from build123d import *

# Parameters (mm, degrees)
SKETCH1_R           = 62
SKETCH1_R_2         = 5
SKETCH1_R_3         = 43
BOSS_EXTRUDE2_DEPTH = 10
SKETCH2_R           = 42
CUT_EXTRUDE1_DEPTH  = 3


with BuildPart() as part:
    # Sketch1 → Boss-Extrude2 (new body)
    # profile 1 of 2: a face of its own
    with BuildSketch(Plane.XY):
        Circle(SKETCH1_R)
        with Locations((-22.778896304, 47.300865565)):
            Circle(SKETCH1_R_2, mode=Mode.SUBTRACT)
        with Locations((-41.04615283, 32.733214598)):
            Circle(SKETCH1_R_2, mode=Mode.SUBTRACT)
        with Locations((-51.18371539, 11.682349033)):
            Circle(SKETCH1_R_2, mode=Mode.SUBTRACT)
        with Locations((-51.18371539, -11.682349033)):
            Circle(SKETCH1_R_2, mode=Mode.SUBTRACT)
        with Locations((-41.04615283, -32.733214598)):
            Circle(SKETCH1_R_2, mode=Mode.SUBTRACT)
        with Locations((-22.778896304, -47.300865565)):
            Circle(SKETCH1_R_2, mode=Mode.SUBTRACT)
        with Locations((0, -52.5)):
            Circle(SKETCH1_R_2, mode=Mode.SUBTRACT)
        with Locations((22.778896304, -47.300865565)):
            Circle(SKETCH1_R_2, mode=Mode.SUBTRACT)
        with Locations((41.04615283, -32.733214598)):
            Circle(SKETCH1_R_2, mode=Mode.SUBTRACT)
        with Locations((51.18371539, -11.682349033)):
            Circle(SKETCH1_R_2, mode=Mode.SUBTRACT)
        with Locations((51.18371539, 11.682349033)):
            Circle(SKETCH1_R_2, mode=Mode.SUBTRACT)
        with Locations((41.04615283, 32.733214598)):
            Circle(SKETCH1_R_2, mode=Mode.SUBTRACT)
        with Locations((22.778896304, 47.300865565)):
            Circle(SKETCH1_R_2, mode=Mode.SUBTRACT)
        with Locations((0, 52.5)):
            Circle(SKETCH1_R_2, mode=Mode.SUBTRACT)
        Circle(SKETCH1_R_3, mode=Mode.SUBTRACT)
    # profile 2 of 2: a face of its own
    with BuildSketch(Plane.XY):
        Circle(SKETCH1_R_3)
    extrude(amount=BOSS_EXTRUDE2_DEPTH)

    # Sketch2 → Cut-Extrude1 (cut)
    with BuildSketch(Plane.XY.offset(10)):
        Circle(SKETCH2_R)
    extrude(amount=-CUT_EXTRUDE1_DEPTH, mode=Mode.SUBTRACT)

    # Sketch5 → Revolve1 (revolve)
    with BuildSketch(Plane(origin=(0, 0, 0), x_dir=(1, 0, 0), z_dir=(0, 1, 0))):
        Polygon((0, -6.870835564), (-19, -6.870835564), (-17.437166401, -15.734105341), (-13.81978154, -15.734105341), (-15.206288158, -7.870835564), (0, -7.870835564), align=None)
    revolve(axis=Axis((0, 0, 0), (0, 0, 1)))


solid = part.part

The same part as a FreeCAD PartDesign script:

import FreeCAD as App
import Part
import Sketcher
Q = App.Units.Quantity

doc = App.newDocument("Part")
params = doc.addObject("Spreadsheet::Sheet", "Params")
for row, (alias, value) in enumerate([
    ("sketch1_diameter", "124 mm"),
    ("sketch1_diameter2", "10 mm"),
    ("pad1_length", "10 mm"),
    ("sketch2_diameter", "84 mm"),
    ("pocket1_length", "3 mm"),
    ("sketch3_width", "19 mm"),
    ("sketch3_height", "1 mm"),
    ("sketch3_length", "9 mm"),
    ("revolution_angle", "360 deg"),
], start=1):
    params.set(f"A{row}", alias)
    params.set(f"B{row}", "=" + value)
    params.setAlias(f"B{row}", alias)

body = doc.addObject("PartDesign::Body", "Body")

sketch1 = body.newObject("Sketcher::SketchObject", "Sketch")
sketch1.AttachmentSupport = (doc.getObject("XY_Plane"), [""])
sketch1.MapMode = "FlatFace"
sketch1.addGeometry([
    Part.Circle(App.Vector(0, 0, 0), App.Vector(0, 0, 1), 62),
    Part.Circle(App.Vector(-41.046153, -32.733215, 0), App.Vector(0, 0, 1), 5),
    Part.Circle(App.Vector(-22.778896, -47.300866, 0), App.Vector(0, 0, 1), 5),
    Part.Circle(App.Vector(-51.183715, -11.682349, 0), App.Vector(0, 0, 1), 5),
    Part.Circle(App.Vector(0, -52.5, 0), App.Vector(0, 0, 1), 5),
    Part.Circle(App.Vector(22.778896, -47.300866, 0), App.Vector(0, 0, 1), 5),
    Part.Circle(App.Vector(41.046153, -32.733215, 0), App.Vector(0, 0, 1), 5),
    Part.Circle(App.Vector(51.183715, -11.682349, 0), App.Vector(0, 0, 1), 5),
    Part.Circle(App.Vector(-51.183715, 11.682349, 0), App.Vector(0, 0, 1), 5),
    Part.Circle(App.Vector(-41.046153, 32.733215, 0), App.Vector(0, 0, 1), 5),
    Part.Circle(App.Vector(-22.778896, 47.300866, 0), App.Vector(0, 0, 1), 5),
    Part.Circle(App.Vector(51.183715, 11.682349, 0), App.Vector(0, 0, 1), 5),
    Part.Circle(App.Vector(0, 52.5, 0), App.Vector(0, 0, 1), 5),
    Part.Circle(App.Vector(22.778896, 47.300866, 0), App.Vector(0, 0, 1), 5),
    Part.Circle(App.Vector(41.046153, 32.733215, 0), App.Vector(0, 0, 1), 5),
], False)
sketch1.addConstraint([
    Sketcher.Constraint("Coincident", 0, 3, -1, 1),
    Sketcher.Constraint("Equal", 1, 2),
    Sketcher.Constraint("Equal", 2, 3),
    Sketcher.Constraint("Equal", 3, 4),
    Sketcher.Constraint("Equal", 4, 5),
    Sketcher.Constraint("Equal", 5, 6),
    Sketcher.Constraint("Equal", 6, 7),
    Sketcher.Constraint("Equal", 7, 8),
    Sketcher.Constraint("Equal", 8, 9),
    Sketcher.Constraint("Equal", 9, 10),
    Sketcher.Constraint("Equal", 10, 11),
    Sketcher.Constraint("Equal", 11, 12),
    Sketcher.Constraint("Equal", 12, 13),
    Sketcher.Constraint("Equal", 13, 14),
    Sketcher.Constraint("Symmetric", 7, 3, 8, 3, -1, 1),
    Sketcher.Constraint("Symmetric", 6, 3, 9, 3, -1, 1),
    Sketcher.Constraint("Symmetric", 5, 3, 10, 3, -1, 1),
    Sketcher.Constraint("Symmetric", 3, 3, 11, 3, -1, 1),
    Sketcher.Constraint("Symmetric", 4, 3, 12, 3, -1, 1),
    Sketcher.Constraint("Symmetric", 2, 3, 13, 3, -1, 1),
    Sketcher.Constraint("Symmetric", 1, 3, 14, 3, -1, 1),
    Sketcher.Constraint("Symmetric", 2, 3, 5, 3, -2),
    Sketcher.Constraint("Symmetric", 1, 3, 6, 3, -2),
    Sketcher.Constraint("Symmetric", 3, 3, 7, 3, -2),
    Sketcher.Constraint("PointOnObject", 4, 3, -2),
    Sketcher.Constraint("Diameter", 0, 124.0),
    Sketcher.Constraint("Diameter", 1, 10.0),
    Sketcher.Constraint("DistanceY", 4, 3, -1, 1, 52.5),
    Sketcher.Constraint("DistanceY", 3, 3, 8, 3, 23.364698),
    Sketcher.Constraint("DistanceY", 2, 3, 1, 3, 14.567651),
    Sketcher.Constraint("DistanceX", 3, 3, 2, 3, 28.404819),
    Sketcher.Constraint("DistanceX", 1, 3, 5, 3, 63.825049),
    Sketcher.Constraint("DistanceX", 3, 3, 5, 3, 73.962612),
    Sketcher.Constraint("DistanceY", 1, 3, 9, 3, 65.466429),
])
sketch1.setExpression("Constraints[25]", "Params.sketch1_diameter")
sketch1.setExpression("Constraints[26]", "Params.sketch1_diameter2")
pad1 = body.newObject("PartDesign::Pad", "Pad")
pad1.Profile = sketch1
pad1.setExpression("Length", "Params.pad1_length")

sketch2 = body.newObject("Sketcher::SketchObject", "Sketch001")
sketch2.AttachmentSupport = (doc.getObject("XY_Plane"), [""])
sketch2.MapMode = "FlatFace"
sketch2.AttachmentOffset = App.Placement(App.Vector(0, 0, 10), App.Rotation())
sketch2.addGeometry(Part.Circle(App.Vector(0, 0, 0), App.Vector(0, 0, 1), 42), False)
sketch2.addConstraint([
    Sketcher.Constraint("Coincident", 0, 3, -1, 1),
    Sketcher.Constraint("Diameter", 0, 84.0),
])
sketch2.setExpression("Constraints[1]", "Params.sketch2_diameter")
pocket1 = body.newObject("PartDesign::Pocket", "Pocket")
pocket1.Profile = sketch2
pocket1.setExpression("Length", "Params.pocket1_length")

sketch3 = body.newObject("Sketcher::SketchObject", "Sketch002")
sketch3.AttachmentSupport = (doc.getObject("XZ_Plane"), [""])
sketch3.MapMode = "FlatFace"
sketch3.addGeometry([
    Part.LineSegment(App.Vector(0, 6.870836, 0), App.Vector(-19, 6.870836, 0)),
    Part.LineSegment(App.Vector(-19, 6.870836, 0), App.Vector(-17.437166, 15.734105, 0)),
    Part.LineSegment(App.Vector(-17.437166, 15.734105, 0), App.Vector(-13.819782, 15.734105, 0)),
    Part.LineSegment(App.Vector(-13.819782, 15.734105, 0), App.Vector(-15.206288, 7.870836, 0)),
    Part.LineSegment(App.Vector(-15.206288, 7.870836, 0), App.Vector(0, 7.870836, 0)),
    Part.LineSegment(App.Vector(0, 7.870836, 0), App.Vector(0, 6.870836, 0)),
], False)
sketch3.addConstraint([
    Sketcher.Constraint("Coincident", 0, 2, 1, 1),
    Sketcher.Constraint("Coincident", 1, 2, 2, 1),
    Sketcher.Constraint("Coincident", 2, 2, 3, 1),
    Sketcher.Constraint("Coincident", 3, 2, 4, 1),
    Sketcher.Constraint("Coincident", 4, 2, 5, 1),
    Sketcher.Constraint("Coincident", 5, 2, 0, 1),
    Sketcher.Constraint("Horizontal", 0),
    Sketcher.Constraint("Horizontal", 2),
    Sketcher.Constraint("Horizontal", 4),
    Sketcher.Constraint("Vertical", 5),
    Sketcher.Constraint("PointOnObject", 4, 2, -2),
    Sketcher.Constraint("Parallel", 1, 3),
    Sketcher.Constraint("DistanceX", 0, 2, 0, 1, 19.0),
    Sketcher.Constraint("DistanceY", 5, 2, 5, 1, 1.0),
    Sketcher.Constraint("Angle", 1, Q("80 deg")),
    Sketcher.Constraint("Distance", 1, 9.0),
    Sketcher.Constraint("DistanceX", 4, 1, 4, 2, 15.206288),
    Sketcher.Constraint("DistanceY", -1, 1, 0, 2, 6.870836),
])
sketch3.setExpression("Constraints[12]", "Params.sketch3_width")
sketch3.setExpression("Constraints[13]", "Params.sketch3_height")
sketch3.setExpression("Constraints[15]", "Params.sketch3_length")
revolution = body.newObject("PartDesign::Revolution", "Revolution")
revolution.Profile = sketch3
revolution.ReferenceAxis = (sketch3, ["V_Axis"])
revolution.setExpression("Angle", "Params.revolution_angle")

doc.recompute()
